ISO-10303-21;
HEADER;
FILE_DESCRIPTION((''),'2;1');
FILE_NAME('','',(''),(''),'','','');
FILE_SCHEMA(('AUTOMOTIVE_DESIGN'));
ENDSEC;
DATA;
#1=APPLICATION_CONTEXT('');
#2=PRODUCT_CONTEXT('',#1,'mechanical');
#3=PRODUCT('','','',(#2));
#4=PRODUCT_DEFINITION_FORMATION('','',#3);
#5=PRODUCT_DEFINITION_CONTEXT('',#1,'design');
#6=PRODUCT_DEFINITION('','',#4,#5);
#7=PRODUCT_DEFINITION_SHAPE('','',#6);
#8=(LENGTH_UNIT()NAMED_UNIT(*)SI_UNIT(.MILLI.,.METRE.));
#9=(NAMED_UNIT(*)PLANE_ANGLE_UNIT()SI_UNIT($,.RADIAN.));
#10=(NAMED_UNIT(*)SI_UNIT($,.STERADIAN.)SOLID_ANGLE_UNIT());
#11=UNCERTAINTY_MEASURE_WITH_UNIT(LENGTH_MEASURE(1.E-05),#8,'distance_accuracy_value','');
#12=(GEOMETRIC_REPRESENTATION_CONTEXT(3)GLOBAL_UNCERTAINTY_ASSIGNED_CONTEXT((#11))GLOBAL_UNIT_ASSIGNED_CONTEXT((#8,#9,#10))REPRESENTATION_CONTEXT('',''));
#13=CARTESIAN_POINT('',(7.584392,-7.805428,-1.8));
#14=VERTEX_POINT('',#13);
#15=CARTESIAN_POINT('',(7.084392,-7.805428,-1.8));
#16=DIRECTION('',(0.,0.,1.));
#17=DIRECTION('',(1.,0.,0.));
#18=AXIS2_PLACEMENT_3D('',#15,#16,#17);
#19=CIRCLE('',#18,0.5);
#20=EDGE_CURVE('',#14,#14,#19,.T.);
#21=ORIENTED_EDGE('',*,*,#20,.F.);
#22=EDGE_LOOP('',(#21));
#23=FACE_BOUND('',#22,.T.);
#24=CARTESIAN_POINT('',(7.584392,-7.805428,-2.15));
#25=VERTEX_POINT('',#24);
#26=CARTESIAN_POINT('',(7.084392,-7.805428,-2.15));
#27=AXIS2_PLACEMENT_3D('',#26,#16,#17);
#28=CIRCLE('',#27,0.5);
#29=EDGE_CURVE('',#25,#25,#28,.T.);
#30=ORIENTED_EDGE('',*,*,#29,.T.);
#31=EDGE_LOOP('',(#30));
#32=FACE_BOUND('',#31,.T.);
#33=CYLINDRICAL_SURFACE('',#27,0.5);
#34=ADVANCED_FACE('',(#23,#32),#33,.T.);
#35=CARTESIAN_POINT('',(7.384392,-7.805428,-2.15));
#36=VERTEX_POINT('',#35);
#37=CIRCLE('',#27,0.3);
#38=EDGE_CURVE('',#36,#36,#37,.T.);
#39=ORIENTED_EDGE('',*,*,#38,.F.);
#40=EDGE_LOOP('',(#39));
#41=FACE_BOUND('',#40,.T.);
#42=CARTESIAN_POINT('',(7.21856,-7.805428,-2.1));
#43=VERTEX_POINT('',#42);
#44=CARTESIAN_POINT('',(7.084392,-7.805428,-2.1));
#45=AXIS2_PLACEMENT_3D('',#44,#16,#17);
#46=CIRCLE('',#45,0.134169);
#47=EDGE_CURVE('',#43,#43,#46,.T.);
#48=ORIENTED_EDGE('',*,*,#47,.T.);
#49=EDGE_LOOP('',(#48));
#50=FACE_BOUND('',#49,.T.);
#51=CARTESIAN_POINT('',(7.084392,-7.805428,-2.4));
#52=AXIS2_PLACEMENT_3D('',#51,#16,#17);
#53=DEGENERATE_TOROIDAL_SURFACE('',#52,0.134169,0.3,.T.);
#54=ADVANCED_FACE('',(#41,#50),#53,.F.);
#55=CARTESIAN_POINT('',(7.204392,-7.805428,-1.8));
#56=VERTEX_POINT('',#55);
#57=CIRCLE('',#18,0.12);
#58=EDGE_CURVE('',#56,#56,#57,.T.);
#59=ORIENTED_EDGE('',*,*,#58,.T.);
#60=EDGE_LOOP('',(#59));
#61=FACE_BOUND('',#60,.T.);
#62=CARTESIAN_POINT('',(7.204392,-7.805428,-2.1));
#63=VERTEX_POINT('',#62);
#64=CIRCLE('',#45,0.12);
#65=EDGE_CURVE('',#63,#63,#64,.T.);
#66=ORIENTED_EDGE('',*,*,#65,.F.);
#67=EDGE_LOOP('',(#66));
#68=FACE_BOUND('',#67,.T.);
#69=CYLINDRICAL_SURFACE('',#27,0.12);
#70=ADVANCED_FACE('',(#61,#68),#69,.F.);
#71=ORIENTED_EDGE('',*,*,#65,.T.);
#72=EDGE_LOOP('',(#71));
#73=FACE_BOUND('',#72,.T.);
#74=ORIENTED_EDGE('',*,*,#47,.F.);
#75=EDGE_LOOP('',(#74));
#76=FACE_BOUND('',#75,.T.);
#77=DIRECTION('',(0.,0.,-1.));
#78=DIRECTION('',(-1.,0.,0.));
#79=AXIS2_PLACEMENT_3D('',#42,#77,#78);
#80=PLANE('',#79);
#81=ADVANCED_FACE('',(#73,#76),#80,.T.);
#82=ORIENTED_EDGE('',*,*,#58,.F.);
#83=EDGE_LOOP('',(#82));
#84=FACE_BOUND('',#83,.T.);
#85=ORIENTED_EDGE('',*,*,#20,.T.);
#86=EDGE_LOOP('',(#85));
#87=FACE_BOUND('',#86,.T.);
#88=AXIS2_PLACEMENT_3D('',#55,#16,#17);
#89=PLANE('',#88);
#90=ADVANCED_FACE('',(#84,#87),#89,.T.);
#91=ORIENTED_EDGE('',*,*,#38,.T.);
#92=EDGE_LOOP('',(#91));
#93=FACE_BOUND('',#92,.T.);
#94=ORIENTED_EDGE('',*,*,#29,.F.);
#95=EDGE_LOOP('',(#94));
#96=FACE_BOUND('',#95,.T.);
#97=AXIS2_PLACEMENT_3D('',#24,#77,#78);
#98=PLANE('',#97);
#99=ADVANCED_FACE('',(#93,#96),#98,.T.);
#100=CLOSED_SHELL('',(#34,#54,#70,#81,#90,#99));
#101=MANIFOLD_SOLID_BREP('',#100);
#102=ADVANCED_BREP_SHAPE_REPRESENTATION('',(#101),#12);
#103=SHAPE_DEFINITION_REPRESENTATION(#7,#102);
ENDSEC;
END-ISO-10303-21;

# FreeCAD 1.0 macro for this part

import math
import FreeCAD as App
import Part
import Sketcher
Q = App.Units.Quantity

doc = App.newDocument("Part")
params = doc.addObject("Spreadsheet::Sheet", "Params")
for row, (alias, value) in enumerate([
    ("sketch1_radius", "0.3 mm"),
    ("sketch1_width", "0.2 mm"),
    ("sketch1_height", "0.3 mm"),
    ("sketch1_width2", "0.38 mm"),
    ("sketch1_height2", "0.35 mm"),
    ("revolution_angle", "360 deg"),
], start=1):
    params.set(f"A{row}", alias)
    params.set(f"B{row}", "=" + value)
    params.setAlias(f"B{row}", alias)

body = doc.addObject("PartDesign::Body", "Body")

# Sketch on XZ plane
sketch1 = doc.addObject("Sketcher::SketchObject", "Sketch")
body.addObject(sketch1)
sketch1.AttachmentSupport = (doc.XZ_Plane, [""])
sketch1.MapMode = "FlatFace"
sketch1.AttachmentOffset = App.Placement(App.Vector(0, 0, 7.805428), App.Rotation())
sketch1.addGeometry([
    Part.LineSegment(App.Vector(7.584, -1.8, 0), App.Vector(7.584, -2.15, 0)),  # 0
    Part.LineSegment(App.Vector(7.584, -2.15, 0), App.Vector(7.384, -2.15, 0)),  # 1
    Part.ArcOfCircle(Part.Circle(App.Vector(7.219, -2.4, 0), App.Vector(0, 0, 1), 0.3), math.radians(56), math.radians(90)),  # 2
    Part.LineSegment(App.Vector(7.219, -2.1, 0), App.Vector(7.204, -2.1, 0)),  # 3
    Part.LineSegment(App.Vector(7.204, -2.1, 0), App.Vector(7.204, -1.8, 0)),  # 4
    Part.LineSegment(App.Vector(7.204, -1.8, 0), App.Vector(7.584, -1.8, 0)),  # 5
], False)
sketch1.addGeometry(Part.LineSegment(App.Vector(7.084, -2.4, 0), App.Vector(7.084, -1.8, 0)), True)  # axis
sketch1.addConstraint([
    Sketcher.Constraint("Coincident", 0, 2, 1, 1),
    Sketcher.Constraint("Coincident", 1, 2, 2, 1),
    Sketcher.Constraint("Tangent", 2, 2, 3, 1),
    Sketcher.Constraint("Coincident", 3, 2, 4, 1),
    Sketcher.Constraint("Coincident", 4, 2, 5, 1),
    Sketcher.Constraint("Coincident", 5, 2, 0, 1),
    Sketcher.Constraint("Vertical", 0),
    Sketcher.Constraint("Horizontal", 1),
    Sketcher.Constraint("Horizontal", 3),
    Sketcher.Constraint("Vertical", 4),
    Sketcher.Constraint("Horizontal", 5),
    Sketcher.Constraint("Vertical", 6),
    Sketcher.Constraint("Horizontal", 2, 3, 6, 1),
    Sketcher.Constraint("Horizontal", 5, 2, 6, 2),
    Sketcher.Constraint("Radius", 2, Q("0.3 mm")),
    Sketcher.Constraint("DistanceX", 1, 2, 1, 1, Q("0.2 mm")),
    Sketcher.Constraint("DistanceY", 4, 1, 4, 2, Q("0.3 mm")),
    Sketcher.Constraint("DistanceX", 5, 1, 5, 2, Q("0.38 mm")),
    Sketcher.Constraint("DistanceY", 0, 2, 0, 1, Q("0.35 mm")),
    Sketcher.Constraint("DistanceY", 2, 3, -1, 1, Q("2.4 mm")),
    Sketcher.Constraint("DistanceX", 6, 1, 1, 2, Q("0.3 mm")),
    Sketcher.Constraint("DistanceX", -1, 1, 2, 3, Q("7.21856 mm")),
])
sketch1.setExpression("Constraints[14]", "Params.sketch1_radius")
sketch1.setExpression("Constraints[15]", "Params.sketch1_width")
sketch1.setExpression("Constraints[16]", "Params.sketch1_height")
sketch1.setExpression("Constraints[17]", "Params.sketch1_width2")
sketch1.setExpression("Constraints[18]", "Params.sketch1_height2")
revolution = doc.addObject("PartDesign::Revolution", "Revolution")
body.addObject(revolution)
revolution.Profile = sketch1
revolution.ReferenceAxis = (sketch1, ["Axis0"])
revolution.setExpression("Angle", "Params.revolution_angle")

doc.recompute()
